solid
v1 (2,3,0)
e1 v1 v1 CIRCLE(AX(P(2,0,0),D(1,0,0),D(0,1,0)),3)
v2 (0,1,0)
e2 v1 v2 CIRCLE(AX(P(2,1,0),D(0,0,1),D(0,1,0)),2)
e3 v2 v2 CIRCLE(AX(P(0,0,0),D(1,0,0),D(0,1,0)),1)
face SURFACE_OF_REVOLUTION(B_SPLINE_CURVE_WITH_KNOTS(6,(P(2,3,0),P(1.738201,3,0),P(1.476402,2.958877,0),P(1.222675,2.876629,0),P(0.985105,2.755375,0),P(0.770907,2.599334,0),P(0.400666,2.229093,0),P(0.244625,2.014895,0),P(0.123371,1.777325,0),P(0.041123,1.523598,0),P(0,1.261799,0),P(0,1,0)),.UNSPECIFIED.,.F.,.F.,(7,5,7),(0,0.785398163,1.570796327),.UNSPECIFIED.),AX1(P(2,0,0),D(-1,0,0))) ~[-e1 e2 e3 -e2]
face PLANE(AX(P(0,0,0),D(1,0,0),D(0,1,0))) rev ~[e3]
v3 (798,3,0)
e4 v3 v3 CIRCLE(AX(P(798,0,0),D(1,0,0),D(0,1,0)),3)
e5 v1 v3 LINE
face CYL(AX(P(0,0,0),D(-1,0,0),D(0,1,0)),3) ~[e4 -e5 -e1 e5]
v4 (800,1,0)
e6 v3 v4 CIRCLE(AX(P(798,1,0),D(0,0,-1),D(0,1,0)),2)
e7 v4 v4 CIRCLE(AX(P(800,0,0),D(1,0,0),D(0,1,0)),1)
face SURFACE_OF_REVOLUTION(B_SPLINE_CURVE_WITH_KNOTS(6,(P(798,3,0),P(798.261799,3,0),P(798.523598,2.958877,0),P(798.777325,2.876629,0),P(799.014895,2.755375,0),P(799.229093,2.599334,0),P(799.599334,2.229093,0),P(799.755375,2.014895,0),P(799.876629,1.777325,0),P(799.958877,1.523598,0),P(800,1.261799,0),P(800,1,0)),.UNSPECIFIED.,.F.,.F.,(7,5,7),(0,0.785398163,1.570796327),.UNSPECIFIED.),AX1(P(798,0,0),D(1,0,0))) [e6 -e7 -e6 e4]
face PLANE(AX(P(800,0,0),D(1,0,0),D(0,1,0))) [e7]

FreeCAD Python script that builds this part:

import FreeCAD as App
import Part
import Sketcher
Q = App.Units.Quantity


def edges_at(feature, points):
    """Names of the edges that pass closest to the given points."""
    edges = feature.Shape.Edges
    near = lambda p: min(range(len(edges)), key=lambda i: edges[i].distToShape(Part.Vertex(*p))[0])
    return sorted({f"Edge{near(p) + 1}" for p in points})

doc = App.newDocument("Part")
params = doc.addObject("Spreadsheet::Sheet", "Params")
for row, (alias, value) in enumerate([
    ("sketch1_diameter", "6 mm"),
    ("pad1_length", "800 mm"),
    ("fillet_radius", "2 mm"),
], start=1):
    params.set(f"A{row}", alias)
    params.set(f"B{row}", "=" + value)
    params.setAlias(f"B{row}", alias)

body = doc.addObject("PartDesign::Body", "Body")

sketch1 = body.newObject("Sketcher::SketchObject", "Sketch")
sketch1.AttachmentSupport = (doc.getObject("YZ_Plane"), [""])
sketch1.MapMode = "FlatFace"
sketch1.addGeometry(Part.Circle(App.Vector(0, 0, 0), App.Vector(0, 0, 1), 3), False)
sketch1.addConstraint([
    Sketcher.Constraint("Coincident", 0, 3, -1, 1),
    Sketcher.Constraint("Diameter", 0, Q("6 mm")),
])
sketch1.setExpression("Constraints[1]", "Params.sketch1_diameter")
pad1 = body.newObject("PartDesign::Pad", "Pad")
pad1.Profile = sketch1
pad1.setExpression("Length", "Params.pad1_length")
doc.recompute()

fillet = body.newObject("PartDesign::Fillet", "Fillet")
fillet.Base = (pad1, edges_at(pad1, [(800, -3, 0), (0, -3, 0)]))
fillet.setExpression("Radius", "Params.fillet_radius")

doc.recompute()
